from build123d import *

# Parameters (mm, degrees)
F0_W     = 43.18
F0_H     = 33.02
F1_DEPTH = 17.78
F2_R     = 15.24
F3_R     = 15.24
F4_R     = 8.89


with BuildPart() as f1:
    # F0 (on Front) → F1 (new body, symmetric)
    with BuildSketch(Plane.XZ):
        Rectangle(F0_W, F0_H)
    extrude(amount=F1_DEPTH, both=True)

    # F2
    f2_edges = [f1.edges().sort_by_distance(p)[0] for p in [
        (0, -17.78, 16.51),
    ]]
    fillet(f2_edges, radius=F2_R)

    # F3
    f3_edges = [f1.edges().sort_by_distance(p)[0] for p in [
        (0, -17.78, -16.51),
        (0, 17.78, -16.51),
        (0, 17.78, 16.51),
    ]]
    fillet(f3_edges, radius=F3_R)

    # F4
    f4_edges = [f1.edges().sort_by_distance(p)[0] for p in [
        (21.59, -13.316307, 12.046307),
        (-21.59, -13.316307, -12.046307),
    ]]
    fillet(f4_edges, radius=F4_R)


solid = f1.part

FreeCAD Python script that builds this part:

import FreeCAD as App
import Part
import Sketcher
from FreeCAD import Vector
Q = App.Units.Quantity


def edges_at(feature, points):
    """Names of the edges that pass closest to the given points."""
    edges = feature.Shape.Edges
    near = lambda p: min(range(len(edges)), key=lambda i: edges[i].distToShape(Part.Vertex(*p))[0])
    return sorted({f"Edge{near(p) + 1}" for p in points})


def add_polygon(sketch, points):
    """Adds a closed chain of lines whose ends are joined by coincident constraints."""
    first, n = sketch.GeometryCount, len(points)
    for a, b in zip(points, points[1:] + points[:1]):
        sketch.addGeometry(Part.LineSegment(App.Vector(*a, 0), App.Vector(*b, 0)), False)
    for i in range(n):
        sketch.addConstraint(Sketcher.Constraint("Coincident", first + i, 2, first + (i + 1) % n, 1))

doc = App.newDocument("Part")
body = doc.addObject("PartDesign::Body", "Body")

# Sketch on XZ plane
sketch1 = body.newObject("Sketcher::SketchObject", "Sketch")
sketch1.AttachmentSupport = (doc.getObject("XZ_Plane"), [""])
sketch1.MapMode = "FlatFace"
add_polygon(sketch1, [(-22, 17), (-22, -17), (22, -17), (22, 17)])  # lines 0-3
sketch1.addConstraint([
    Sketcher.Constraint("Vertical", 0),
    Sketcher.Constraint("Horizontal", 1),
    Sketcher.Constraint("Vertical", 2),
    Sketcher.Constraint("Horizontal", 3),
    Sketcher.Constraint("Symmetric", 0, 2, 2, 2, -1, 1),
    Sketcher.Constraint("DistanceX", 1, 1, 1, 2, Q("1.7 in")),
    Sketcher.Constraint("DistanceY", 0, 2, 0, 1, Q("1.3 in")),
])
pad1 = body.newObject("PartDesign::Pad", "Pad")
pad1.Profile = sketch1
pad1.Length = Q("1.4 in")
pad1.Midplane = True
doc.recompute()

fillet = body.newObject("PartDesign::Fillet", "Fillet")
fillet.Base = (pad1, edges_at(pad1, [(0, -17.78, 16.51)]))
fillet.Radius = Q("0.6 in")
doc.recompute()

fillet2 = body.newObject("PartDesign::Fillet", "Fillet001")
fillet2.Base = (fillet, edges_at(fillet, [(0, -17.78, -16.51), (0, 17.78, -16.51), (0, 17.78, 16.51)]))
fillet2.Radius = Q("0.6 in")
doc.recompute()

fillet3 = body.newObject("PartDesign::Fillet", "Fillet002")
fillet3.Base = (fillet2, edges_at(fillet2, [(21.59, -13.316, 12.046), (-21.59, -13.316, -12.046)]))
fillet3.Radius = Q("0.35 in")

doc.recompute()
